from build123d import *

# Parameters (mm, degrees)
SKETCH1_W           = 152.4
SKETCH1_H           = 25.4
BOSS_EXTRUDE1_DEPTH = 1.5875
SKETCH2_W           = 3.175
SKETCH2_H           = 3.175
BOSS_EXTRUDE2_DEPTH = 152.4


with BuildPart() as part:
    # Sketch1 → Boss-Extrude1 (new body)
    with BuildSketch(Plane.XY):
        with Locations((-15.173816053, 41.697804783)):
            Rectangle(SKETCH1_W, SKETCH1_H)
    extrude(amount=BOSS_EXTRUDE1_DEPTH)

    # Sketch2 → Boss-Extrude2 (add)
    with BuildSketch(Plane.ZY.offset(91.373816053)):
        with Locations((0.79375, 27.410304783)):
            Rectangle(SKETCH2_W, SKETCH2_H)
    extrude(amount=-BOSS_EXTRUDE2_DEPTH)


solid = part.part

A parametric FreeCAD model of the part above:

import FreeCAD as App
import Part
import Sketcher
from FreeCAD import Vector
Q = App.Units.Quantity


def add_polygon(sketch, points):
    """Adds a closed chain of lines whose ends are joined by coincident constraints."""
    first, n = sketch.GeometryCount, len(points)
    for a, b in zip(points, points[1:] + points[:1]):
        sketch.addGeometry(Part.LineSegment(App.Vector(*a, 0), App.Vector(*b, 0)), False)
    for i in range(n):
        sketch.addConstraint(Sketcher.Constraint("Coincident", first + i, 2, first + (i + 1) % n, 1))

doc = App.newDocument("Part")
body = doc.addObject("PartDesign::Body", "Body")

sketch1 = doc.addObject("Sketcher::SketchObject", "Sketch")
body.addObject(sketch1)
sketch1.AttachmentSupport = (doc.XY_Plane, [""])
sketch1.MapMode = "FlatFace"
add_polygon(sketch1, [(-91.373816, 54.397805), (-91.373816, 28.997805), (61.026184, 28.997805), (61.026184, 54.397805)])
sketch1.addConstraint(Sketcher.Constraint("Vertical", 0))
sketch1.addConstraint(Sketcher.Constraint("Horizontal", 1))
sketch1.addConstraint(Sketcher.Constraint("Vertical", 2))
sketch1.addConstraint(Sketcher.Constraint("Horizontal", 3))
sketch1.addConstraint(Sketcher.Constraint("DistanceX", 1, 1, 1, 2, Q("6 in")))
sketch1.addConstraint(Sketcher.Constraint("DistanceY", 0, 2, 0, 1, Q("1 in")))
sketch1.addConstraint(Sketcher.Constraint("DistanceX", 0, 2, -1, 1, 91.373816))
sketch1.addConstraint(Sketcher.Constraint("DistanceY", -1, 1, 0, 2, 28.997805))
pad1 = doc.addObject("PartDesign::Pad", "Pad")
body.addObject(pad1)
pad1.Profile = sketch1
pad1.Length = Q("0.0625 in")

sketch2 = doc.addObject("Sketcher::SketchObject", "Sketch001")
body.addObject(sketch2)
sketch2.AttachmentSupport = (doc.YZ_Plane, [""])
sketch2.MapMode = "FlatFace"
sketch2.AttachmentOffset = App.Placement(Vector(0, 0, -91.373816), App.Rotation())
add_polygon(sketch2, [(28.997805, -0.79375), (25.822805, -0.79375), (25.822805, 2.38125), (28.997805, 2.38125)])
sketch2.addConstraint(Sketcher.Constraint("Horizontal", 0))
sketch2.addConstraint(Sketcher.Constraint("Vertical", 1))
sketch2.addConstraint(Sketcher.Constraint("Horizontal", 2))
sketch2.addConstraint(Sketcher.Constraint("Vertical", 3))
sketch2.addConstraint(Sketcher.Constraint("Equal", 2, 1))
sketch2.addConstraint(Sketcher.Constraint("DistanceX", 0, 2, 0, 1, Q("0.125 in")))
sketch2.addConstraint(Sketcher.Constraint("DistanceY", 0, 2, -1, 1, Q("0.03125 in")))
sketch2.addConstraint(Sketcher.Constraint("DistanceX", -1, 1, 0, 2, 25.822805))
pad2 = doc.addObject("PartDesign::Pad", "Pad001")
body.addObject(pad2)
pad2.Profile = sketch2
pad2.Length = Q("6 in")

doc.recompute()
